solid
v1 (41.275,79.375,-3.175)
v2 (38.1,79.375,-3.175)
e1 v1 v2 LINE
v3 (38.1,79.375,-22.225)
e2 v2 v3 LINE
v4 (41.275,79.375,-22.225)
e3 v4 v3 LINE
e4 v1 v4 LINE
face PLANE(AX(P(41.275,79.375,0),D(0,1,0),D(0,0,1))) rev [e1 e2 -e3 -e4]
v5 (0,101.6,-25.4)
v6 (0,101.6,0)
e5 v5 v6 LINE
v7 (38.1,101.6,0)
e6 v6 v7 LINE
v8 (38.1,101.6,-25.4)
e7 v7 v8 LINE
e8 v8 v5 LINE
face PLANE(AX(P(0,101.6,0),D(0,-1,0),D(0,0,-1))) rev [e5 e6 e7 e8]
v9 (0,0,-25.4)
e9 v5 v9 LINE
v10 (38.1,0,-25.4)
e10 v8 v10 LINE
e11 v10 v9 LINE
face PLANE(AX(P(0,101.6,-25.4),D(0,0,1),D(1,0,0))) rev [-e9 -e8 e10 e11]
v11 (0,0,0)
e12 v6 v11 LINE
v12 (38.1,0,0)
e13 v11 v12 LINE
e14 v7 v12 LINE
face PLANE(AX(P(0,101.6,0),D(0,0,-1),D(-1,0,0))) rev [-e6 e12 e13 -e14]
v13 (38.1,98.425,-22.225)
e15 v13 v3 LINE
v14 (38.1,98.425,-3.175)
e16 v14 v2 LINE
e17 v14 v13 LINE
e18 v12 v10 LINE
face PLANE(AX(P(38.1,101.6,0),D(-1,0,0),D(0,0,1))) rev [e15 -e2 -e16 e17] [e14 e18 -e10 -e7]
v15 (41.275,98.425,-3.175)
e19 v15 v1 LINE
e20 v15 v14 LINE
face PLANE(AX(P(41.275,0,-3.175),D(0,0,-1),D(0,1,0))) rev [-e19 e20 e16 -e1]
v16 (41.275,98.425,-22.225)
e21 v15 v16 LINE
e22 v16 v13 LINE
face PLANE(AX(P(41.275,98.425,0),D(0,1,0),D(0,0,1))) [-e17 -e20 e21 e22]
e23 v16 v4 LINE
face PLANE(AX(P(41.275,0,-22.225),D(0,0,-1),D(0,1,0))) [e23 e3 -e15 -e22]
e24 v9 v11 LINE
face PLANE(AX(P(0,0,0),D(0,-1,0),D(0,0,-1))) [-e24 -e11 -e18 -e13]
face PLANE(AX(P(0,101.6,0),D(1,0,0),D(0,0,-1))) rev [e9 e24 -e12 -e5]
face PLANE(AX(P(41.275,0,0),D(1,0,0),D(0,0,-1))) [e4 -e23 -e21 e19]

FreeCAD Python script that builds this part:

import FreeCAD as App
import Part
import Sketcher
from FreeCAD import Vector
Q = App.Units.Quantity

doc = App.newDocument("Part")
body = doc.addObject("PartDesign::Body", "Body")

sketch1 = body.newObject("Sketcher::SketchObject", "Sketch")
sketch1.AttachmentSupport = (doc.getObject("XZ_Plane"), [""])
sketch1.MapMode = "FlatFace"
sketch1.addGeometry([
    Part.LineSegment(Vector(0, -25.4, 0), Vector(0, 0, 0)),
    Part.LineSegment(Vector(0, 0, 0), Vector(38.1, 0, 0)),
    Part.LineSegment(Vector(38.1, 0, 0), Vector(38.1, -25.4, 0)),
    Part.LineSegment(Vector(38.1, -25.4, 0), Vector(0, -25.4, 0)),
], False)
sketch1.addConstraint([
    Sketcher.Constraint("Coincident", 0, 2, 1, 1),
    Sketcher.Constraint("Coincident", 1, 2, 2, 1),
    Sketcher.Constraint("Coincident", 2, 2, 3, 1),
    Sketcher.Constraint("Coincident", 3, 2, 0, 1),
    Sketcher.Constraint("Vertical", 0),
    Sketcher.Constraint("Horizontal", 1),
    Sketcher.Constraint("Vertical", 2),
    Sketcher.Constraint("Horizontal", 3),
    Sketcher.Constraint("Coincident", 0, 2, -1, 1),
    Sketcher.Constraint("DistanceY", 0, 1, 0, 2, Q("1 in")),
    Sketcher.Constraint("DistanceX", 1, 1, 1, 2, Q("1.5 in")),
])
pad1 = body.newObject("PartDesign::Pad", "Pad")
pad1.Profile = sketch1
pad1.Length = Q("4 in")
pad1.Reversed = True

sketch2 = body.newObject("Sketcher::SketchObject", "Sketch001")
sketch2.AttachmentSupport = (doc.getObject("YZ_Plane"), [""])
sketch2.MapMode = "FlatFace"
sketch2.AttachmentOffset = App.Placement(Vector(0, 0, 1.5 * 25.4), App.Rotation())
sketch2.addGeometry([
    Part.LineSegment(Vector(98.425, -3.175, 0), Vector(79.375, -3.175, 0)),
    Part.LineSegment(Vector(79.375, -3.175, 0), Vector(79.375, -22.225, 0)),
    Part.LineSegment(Vector(79.375, -22.225, 0), Vector(98.425, -22.225, 0)),
    Part.LineSegment(Vector(98.425, -22.225, 0), Vector(98.425, -3.175, 0)),
], False)
sketch2.addConstraint([
    Sketcher.Constraint("Coincident", 0, 2, 1, 1),
    Sketcher.Constraint("Coincident", 1, 2, 2, 1),
    Sketcher.Constraint("Coincident", 2, 2, 3, 1),
    Sketcher.Constraint("Coincident", 3, 2, 0, 1),
    Sketcher.Constraint("Horizontal", 0),
    Sketcher.Constraint("Vertical", 1),
    Sketcher.Constraint("Horizontal", 2),
    Sketcher.Constraint("Vertical", 3),
    Sketcher.Constraint("Equal", 2, 1),
    Sketcher.Constraint("DistanceX", 0, 2, 0, 1, Q("0.75 in")),
    Sketcher.Constraint("DistanceX", -1, 1, 0, 2, Q("3.125 in")),
    Sketcher.Constraint("DistanceY", 0, 2, -1, 1, Q("0.125 in")),
])
pad2 = body.newObject("PartDesign::Pad", "Pad001")
pad2.Profile = sketch2
pad2.Length = Q("0.125 in")

doc.recompute()
